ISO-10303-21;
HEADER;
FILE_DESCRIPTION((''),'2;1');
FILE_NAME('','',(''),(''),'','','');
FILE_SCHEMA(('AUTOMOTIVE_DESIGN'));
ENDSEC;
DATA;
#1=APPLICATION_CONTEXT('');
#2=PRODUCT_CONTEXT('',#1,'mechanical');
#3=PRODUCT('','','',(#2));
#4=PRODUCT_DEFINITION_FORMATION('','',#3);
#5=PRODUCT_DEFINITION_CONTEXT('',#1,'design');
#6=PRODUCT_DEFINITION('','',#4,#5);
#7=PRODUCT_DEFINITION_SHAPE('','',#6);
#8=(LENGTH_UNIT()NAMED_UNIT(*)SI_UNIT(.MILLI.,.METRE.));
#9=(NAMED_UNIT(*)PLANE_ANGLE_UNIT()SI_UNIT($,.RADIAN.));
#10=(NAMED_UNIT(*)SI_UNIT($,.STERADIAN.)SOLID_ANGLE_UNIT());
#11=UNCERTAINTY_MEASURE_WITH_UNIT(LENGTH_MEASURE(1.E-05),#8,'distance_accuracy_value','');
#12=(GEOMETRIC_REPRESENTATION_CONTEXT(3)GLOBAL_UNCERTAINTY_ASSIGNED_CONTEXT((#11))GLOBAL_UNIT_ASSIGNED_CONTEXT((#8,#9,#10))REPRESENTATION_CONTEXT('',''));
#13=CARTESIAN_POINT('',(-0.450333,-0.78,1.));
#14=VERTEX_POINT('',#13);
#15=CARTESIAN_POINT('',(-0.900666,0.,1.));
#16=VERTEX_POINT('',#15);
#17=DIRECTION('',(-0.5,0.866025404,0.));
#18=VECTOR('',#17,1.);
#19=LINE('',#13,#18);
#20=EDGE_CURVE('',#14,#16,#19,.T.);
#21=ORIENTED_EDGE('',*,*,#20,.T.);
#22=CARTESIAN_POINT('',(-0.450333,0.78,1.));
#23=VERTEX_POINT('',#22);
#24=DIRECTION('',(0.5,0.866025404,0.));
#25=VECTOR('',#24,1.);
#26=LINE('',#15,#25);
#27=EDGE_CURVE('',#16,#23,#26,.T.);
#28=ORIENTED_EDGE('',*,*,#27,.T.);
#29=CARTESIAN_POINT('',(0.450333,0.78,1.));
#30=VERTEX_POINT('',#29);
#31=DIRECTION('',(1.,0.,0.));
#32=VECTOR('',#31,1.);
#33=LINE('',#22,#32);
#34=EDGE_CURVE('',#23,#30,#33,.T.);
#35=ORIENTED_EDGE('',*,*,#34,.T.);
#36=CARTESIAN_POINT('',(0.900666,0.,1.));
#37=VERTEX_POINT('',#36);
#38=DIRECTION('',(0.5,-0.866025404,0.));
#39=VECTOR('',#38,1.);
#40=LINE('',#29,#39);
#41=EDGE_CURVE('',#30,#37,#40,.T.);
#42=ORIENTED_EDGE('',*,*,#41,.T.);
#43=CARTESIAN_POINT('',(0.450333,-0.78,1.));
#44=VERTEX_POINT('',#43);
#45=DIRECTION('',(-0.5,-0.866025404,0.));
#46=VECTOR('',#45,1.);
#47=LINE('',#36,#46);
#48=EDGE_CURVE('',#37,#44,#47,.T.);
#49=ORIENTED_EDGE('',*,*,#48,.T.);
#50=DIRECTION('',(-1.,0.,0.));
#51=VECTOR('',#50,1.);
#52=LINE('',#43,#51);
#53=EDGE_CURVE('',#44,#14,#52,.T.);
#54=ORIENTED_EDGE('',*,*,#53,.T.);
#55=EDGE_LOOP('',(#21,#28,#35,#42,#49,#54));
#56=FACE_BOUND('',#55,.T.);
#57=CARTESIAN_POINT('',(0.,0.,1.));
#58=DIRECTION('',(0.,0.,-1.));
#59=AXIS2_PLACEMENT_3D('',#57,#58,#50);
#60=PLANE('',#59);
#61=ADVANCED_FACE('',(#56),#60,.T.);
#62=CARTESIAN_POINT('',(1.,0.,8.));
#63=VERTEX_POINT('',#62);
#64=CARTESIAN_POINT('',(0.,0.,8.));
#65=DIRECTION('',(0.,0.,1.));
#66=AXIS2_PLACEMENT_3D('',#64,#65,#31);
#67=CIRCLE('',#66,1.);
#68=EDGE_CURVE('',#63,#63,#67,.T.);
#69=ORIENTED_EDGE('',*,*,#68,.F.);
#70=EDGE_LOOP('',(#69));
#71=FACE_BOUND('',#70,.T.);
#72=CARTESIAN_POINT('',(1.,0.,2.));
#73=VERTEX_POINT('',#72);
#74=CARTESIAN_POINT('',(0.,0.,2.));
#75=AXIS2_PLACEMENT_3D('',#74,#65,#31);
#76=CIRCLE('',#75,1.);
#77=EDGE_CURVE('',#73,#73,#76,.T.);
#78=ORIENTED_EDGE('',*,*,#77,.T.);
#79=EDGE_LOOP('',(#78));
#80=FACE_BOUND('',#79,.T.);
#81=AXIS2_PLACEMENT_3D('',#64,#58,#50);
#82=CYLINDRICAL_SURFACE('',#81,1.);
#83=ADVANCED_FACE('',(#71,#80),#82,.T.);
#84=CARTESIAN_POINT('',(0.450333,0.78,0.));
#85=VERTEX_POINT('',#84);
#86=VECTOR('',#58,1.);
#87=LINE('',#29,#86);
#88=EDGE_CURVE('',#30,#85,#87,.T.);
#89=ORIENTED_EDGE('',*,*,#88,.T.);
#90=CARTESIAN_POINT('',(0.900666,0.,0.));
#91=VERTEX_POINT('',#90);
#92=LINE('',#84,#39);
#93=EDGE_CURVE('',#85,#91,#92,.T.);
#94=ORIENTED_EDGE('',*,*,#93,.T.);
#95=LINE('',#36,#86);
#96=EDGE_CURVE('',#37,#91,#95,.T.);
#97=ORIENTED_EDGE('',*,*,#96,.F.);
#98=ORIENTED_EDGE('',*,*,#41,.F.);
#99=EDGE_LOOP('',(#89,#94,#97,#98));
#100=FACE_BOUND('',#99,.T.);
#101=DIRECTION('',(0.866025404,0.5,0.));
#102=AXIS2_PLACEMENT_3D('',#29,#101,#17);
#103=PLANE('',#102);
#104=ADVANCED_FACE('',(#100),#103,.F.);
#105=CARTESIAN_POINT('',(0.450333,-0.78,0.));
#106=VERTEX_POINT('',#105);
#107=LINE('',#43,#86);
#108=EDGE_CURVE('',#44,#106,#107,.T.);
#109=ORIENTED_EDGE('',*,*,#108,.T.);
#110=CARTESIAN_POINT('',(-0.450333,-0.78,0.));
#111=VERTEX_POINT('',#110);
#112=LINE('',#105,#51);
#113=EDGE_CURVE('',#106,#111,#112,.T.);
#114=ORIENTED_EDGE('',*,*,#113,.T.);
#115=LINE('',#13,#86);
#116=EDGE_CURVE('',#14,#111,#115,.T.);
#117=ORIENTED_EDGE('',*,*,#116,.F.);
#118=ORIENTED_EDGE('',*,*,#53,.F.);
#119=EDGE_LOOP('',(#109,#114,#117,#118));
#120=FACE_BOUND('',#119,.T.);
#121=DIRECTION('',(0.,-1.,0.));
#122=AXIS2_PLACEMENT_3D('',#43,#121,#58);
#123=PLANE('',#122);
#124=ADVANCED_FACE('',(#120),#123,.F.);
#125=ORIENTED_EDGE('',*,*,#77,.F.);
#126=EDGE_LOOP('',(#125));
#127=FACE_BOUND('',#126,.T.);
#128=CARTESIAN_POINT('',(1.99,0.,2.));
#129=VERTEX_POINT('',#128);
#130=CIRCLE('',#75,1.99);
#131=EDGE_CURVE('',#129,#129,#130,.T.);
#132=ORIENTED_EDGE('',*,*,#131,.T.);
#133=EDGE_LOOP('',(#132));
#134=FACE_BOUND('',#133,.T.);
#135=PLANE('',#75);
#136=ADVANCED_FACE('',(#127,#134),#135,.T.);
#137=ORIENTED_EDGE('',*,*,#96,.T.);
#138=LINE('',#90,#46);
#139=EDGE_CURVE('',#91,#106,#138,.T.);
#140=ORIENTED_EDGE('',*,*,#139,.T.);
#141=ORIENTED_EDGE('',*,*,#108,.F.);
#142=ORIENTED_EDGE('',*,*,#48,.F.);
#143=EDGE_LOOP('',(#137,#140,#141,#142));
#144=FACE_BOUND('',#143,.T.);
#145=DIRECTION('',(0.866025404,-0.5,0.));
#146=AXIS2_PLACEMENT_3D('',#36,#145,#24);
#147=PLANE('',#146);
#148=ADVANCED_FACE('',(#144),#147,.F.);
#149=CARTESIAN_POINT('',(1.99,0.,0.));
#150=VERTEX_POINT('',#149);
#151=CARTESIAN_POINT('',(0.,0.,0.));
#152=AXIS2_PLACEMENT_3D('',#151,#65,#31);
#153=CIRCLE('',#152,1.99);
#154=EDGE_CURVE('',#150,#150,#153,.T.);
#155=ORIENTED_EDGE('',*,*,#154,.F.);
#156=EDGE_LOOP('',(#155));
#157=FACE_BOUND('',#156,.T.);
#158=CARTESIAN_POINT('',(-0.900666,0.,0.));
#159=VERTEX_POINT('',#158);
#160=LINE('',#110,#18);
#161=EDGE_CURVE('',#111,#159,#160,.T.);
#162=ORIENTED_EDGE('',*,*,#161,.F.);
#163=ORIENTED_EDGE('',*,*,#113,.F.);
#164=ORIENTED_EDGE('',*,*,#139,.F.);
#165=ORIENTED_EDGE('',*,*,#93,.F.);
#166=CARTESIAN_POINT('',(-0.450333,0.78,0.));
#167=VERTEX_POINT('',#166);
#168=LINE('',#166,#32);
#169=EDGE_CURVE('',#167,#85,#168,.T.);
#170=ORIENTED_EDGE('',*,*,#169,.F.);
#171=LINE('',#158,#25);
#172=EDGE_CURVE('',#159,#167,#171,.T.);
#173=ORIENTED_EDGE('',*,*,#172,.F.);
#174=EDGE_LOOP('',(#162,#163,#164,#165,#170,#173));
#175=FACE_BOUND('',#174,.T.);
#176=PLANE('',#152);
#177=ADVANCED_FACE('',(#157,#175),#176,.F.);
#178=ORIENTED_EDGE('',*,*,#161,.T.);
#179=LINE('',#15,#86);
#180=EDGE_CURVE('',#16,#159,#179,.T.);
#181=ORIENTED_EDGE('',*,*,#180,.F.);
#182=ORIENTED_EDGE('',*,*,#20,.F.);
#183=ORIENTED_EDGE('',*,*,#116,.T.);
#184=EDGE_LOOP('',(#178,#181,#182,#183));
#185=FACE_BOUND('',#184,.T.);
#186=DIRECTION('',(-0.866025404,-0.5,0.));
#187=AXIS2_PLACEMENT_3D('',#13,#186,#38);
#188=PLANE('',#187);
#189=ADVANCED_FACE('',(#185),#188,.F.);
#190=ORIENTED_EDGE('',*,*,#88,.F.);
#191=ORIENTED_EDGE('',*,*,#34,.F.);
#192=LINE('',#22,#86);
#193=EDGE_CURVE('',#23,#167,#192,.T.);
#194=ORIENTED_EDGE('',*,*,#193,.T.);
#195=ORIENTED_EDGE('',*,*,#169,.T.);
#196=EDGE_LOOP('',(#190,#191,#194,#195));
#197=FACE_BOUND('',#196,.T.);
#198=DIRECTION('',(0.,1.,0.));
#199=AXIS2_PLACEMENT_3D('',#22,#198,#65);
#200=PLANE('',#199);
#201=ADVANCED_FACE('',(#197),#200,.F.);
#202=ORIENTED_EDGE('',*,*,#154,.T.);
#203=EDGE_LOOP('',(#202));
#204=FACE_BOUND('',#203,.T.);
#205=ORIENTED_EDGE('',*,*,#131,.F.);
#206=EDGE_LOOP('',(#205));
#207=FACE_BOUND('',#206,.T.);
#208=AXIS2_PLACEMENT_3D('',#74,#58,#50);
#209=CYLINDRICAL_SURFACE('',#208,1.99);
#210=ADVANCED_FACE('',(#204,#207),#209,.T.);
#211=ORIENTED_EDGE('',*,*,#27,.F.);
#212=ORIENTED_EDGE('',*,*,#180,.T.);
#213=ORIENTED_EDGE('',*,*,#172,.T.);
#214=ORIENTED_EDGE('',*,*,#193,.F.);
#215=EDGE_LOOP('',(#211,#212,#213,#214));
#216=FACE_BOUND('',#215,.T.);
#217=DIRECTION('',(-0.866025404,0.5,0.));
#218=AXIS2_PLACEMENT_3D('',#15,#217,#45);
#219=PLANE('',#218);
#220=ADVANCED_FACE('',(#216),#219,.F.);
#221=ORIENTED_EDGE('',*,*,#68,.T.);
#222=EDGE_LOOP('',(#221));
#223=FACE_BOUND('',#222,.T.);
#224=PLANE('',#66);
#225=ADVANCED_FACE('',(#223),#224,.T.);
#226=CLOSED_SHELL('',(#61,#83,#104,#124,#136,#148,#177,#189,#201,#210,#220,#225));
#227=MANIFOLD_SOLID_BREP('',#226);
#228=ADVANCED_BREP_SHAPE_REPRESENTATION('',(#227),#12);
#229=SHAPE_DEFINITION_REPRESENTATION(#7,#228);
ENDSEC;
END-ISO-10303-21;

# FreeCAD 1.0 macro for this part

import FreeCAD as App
import Part
import Sketcher
Q = App.Units.Quantity


def add_polygon(sketch, points):
    """Adds a closed chain of lines whose ends are joined by coincident constraints."""
    first, n = sketch.GeometryCount, len(points)
    for a, b in zip(points, points[1:] + points[:1]):
        sketch.addGeometry(Part.LineSegment(App.Vector(*a, 0), App.Vector(*b, 0)), False)
    for i in range(n):
        sketch.addConstraint(Sketcher.Constraint("Coincident", first + i, 2, first + (i + 1) % n, 1))

doc = App.newDocument("Part")
params = doc.addObject("Spreadsheet::Sheet", "Params")
for row, (alias, value) in enumerate([
    ("sketch1_diameter", "3.98 mm"),
    ("pad1_length", "2 mm"),
    ("sketch2_diameter", "2 mm"),
    ("pad2_length", "6 mm"),
    ("pocket1_length", "1 mm"),
], start=1):
    params.set(f"A{row}", alias)
    params.set(f"B{row}", "=" + value)
    params.setAlias(f"B{row}", alias)

body = doc.addObject("PartDesign::Body", "Body")

# Sketch on XY plane
sketch1 = body.newObject("Sketcher::SketchObject", "Sketch")
sketch1.AttachmentSupport = (doc.getObject("XY_Plane"), [""])
sketch1.MapMode = "FlatFace"
sketch1.addGeometry(Part.Circle(App.Vector(0, 0, 0), App.Vector(0, 0, 1), 1.99), False)
sketch1.addConstraint(Sketcher.Constraint("Coincident", 0, 3, -1, 1))
sketch1.addConstraint(Sketcher.Constraint("Diameter", 0, Q("3.98 mm")))
sketch1.setExpression("Constraints[1]", "Params.sketch1_diameter")
pad1 = body.newObject("PartDesign::Pad", "Pad")
pad1.Profile = sketch1
pad1.setExpression("Length", "Params.pad1_length")

# Sketch on XY plane
sketch2 = body.newObject("Sketcher::SketchObject", "Sketch001")
sketch2.AttachmentSupport = (doc.getObject("XY_Plane"), [""])
sketch2.MapMode = "FlatFace"
sketch2.AttachmentOffset = App.Placement(App.Vector(0, 0, 2), App.Rotation())
sketch2.addGeometry(Part.Circle(App.Vector(0, 0, 0), App.Vector(0, 0, 1), 1), False)
sketch2.addConstraint(Sketcher.Constraint("Coincident", 0, 3, -1, 1))
sketch2.addConstraint(Sketcher.Constraint("Diameter", 0, Q("2 mm")))
sketch2.setExpression("Constraints[1]", "Params.sketch2_diameter")
pad2 = body.newObject("PartDesign::Pad", "Pad001")
pad2.Profile = sketch2
pad2.setExpression("Length", "Params.pad2_length")

# Sketch on XY plane
sketch3 = body.newObject("Sketcher::SketchObject", "Sketch002")
sketch3.AttachmentSupport = (doc.getObject("XY_Plane"), [""])
sketch3.MapMode = "FlatFace"
add_polygon(sketch3, [(-0.900666, 0), (-0.450333, 0.78), (0.450333, 0.78), (0.900666, 0), (0.450333, -0.78), (-0.450333, -0.78)])  # lines 0-5
sketch3.addConstraint(Sketcher.Constraint("Horizontal", 1))
sketch3.addConstraint(Sketcher.Constraint("Horizontal", 4))
sketch3.addConstraint(Sketcher.Constraint("Symmetric", 0, 2, 3, 2, -1, 1))
sketch3.addConstraint(Sketcher.Constraint("Symmetric", 2, 2, 5, 2, -1, 1))
sketch3.addConstraint(Sketcher.Constraint("PointOnObject", 2, 2, -1))
sketch3.addConstraint(Sketcher.Constraint("Parallel", 2, 5))
sketch3.addConstraint(Sketcher.Constraint("Vertical", 1, 2, 3, 2))
sketch3.addConstraint(Sketcher.Constraint("Angle", 0, Q("60 deg")))
sketch3.addConstraint(Sketcher.Constraint("DistanceY", -1, 1, 0, 2, Q("0.78 mm")))
sketch3.addConstraint(Sketcher.Constraint("DistanceX", 0, 2, 2, 2, Q("1.351 mm")))
pocket1 = body.newObject("PartDesign::Pocket", "Pocket")
pocket1.Profile = sketch3
pocket1.setExpression("Length", "Params.pocket1_length")
pocket1.Reversed = True

doc.recompute()
